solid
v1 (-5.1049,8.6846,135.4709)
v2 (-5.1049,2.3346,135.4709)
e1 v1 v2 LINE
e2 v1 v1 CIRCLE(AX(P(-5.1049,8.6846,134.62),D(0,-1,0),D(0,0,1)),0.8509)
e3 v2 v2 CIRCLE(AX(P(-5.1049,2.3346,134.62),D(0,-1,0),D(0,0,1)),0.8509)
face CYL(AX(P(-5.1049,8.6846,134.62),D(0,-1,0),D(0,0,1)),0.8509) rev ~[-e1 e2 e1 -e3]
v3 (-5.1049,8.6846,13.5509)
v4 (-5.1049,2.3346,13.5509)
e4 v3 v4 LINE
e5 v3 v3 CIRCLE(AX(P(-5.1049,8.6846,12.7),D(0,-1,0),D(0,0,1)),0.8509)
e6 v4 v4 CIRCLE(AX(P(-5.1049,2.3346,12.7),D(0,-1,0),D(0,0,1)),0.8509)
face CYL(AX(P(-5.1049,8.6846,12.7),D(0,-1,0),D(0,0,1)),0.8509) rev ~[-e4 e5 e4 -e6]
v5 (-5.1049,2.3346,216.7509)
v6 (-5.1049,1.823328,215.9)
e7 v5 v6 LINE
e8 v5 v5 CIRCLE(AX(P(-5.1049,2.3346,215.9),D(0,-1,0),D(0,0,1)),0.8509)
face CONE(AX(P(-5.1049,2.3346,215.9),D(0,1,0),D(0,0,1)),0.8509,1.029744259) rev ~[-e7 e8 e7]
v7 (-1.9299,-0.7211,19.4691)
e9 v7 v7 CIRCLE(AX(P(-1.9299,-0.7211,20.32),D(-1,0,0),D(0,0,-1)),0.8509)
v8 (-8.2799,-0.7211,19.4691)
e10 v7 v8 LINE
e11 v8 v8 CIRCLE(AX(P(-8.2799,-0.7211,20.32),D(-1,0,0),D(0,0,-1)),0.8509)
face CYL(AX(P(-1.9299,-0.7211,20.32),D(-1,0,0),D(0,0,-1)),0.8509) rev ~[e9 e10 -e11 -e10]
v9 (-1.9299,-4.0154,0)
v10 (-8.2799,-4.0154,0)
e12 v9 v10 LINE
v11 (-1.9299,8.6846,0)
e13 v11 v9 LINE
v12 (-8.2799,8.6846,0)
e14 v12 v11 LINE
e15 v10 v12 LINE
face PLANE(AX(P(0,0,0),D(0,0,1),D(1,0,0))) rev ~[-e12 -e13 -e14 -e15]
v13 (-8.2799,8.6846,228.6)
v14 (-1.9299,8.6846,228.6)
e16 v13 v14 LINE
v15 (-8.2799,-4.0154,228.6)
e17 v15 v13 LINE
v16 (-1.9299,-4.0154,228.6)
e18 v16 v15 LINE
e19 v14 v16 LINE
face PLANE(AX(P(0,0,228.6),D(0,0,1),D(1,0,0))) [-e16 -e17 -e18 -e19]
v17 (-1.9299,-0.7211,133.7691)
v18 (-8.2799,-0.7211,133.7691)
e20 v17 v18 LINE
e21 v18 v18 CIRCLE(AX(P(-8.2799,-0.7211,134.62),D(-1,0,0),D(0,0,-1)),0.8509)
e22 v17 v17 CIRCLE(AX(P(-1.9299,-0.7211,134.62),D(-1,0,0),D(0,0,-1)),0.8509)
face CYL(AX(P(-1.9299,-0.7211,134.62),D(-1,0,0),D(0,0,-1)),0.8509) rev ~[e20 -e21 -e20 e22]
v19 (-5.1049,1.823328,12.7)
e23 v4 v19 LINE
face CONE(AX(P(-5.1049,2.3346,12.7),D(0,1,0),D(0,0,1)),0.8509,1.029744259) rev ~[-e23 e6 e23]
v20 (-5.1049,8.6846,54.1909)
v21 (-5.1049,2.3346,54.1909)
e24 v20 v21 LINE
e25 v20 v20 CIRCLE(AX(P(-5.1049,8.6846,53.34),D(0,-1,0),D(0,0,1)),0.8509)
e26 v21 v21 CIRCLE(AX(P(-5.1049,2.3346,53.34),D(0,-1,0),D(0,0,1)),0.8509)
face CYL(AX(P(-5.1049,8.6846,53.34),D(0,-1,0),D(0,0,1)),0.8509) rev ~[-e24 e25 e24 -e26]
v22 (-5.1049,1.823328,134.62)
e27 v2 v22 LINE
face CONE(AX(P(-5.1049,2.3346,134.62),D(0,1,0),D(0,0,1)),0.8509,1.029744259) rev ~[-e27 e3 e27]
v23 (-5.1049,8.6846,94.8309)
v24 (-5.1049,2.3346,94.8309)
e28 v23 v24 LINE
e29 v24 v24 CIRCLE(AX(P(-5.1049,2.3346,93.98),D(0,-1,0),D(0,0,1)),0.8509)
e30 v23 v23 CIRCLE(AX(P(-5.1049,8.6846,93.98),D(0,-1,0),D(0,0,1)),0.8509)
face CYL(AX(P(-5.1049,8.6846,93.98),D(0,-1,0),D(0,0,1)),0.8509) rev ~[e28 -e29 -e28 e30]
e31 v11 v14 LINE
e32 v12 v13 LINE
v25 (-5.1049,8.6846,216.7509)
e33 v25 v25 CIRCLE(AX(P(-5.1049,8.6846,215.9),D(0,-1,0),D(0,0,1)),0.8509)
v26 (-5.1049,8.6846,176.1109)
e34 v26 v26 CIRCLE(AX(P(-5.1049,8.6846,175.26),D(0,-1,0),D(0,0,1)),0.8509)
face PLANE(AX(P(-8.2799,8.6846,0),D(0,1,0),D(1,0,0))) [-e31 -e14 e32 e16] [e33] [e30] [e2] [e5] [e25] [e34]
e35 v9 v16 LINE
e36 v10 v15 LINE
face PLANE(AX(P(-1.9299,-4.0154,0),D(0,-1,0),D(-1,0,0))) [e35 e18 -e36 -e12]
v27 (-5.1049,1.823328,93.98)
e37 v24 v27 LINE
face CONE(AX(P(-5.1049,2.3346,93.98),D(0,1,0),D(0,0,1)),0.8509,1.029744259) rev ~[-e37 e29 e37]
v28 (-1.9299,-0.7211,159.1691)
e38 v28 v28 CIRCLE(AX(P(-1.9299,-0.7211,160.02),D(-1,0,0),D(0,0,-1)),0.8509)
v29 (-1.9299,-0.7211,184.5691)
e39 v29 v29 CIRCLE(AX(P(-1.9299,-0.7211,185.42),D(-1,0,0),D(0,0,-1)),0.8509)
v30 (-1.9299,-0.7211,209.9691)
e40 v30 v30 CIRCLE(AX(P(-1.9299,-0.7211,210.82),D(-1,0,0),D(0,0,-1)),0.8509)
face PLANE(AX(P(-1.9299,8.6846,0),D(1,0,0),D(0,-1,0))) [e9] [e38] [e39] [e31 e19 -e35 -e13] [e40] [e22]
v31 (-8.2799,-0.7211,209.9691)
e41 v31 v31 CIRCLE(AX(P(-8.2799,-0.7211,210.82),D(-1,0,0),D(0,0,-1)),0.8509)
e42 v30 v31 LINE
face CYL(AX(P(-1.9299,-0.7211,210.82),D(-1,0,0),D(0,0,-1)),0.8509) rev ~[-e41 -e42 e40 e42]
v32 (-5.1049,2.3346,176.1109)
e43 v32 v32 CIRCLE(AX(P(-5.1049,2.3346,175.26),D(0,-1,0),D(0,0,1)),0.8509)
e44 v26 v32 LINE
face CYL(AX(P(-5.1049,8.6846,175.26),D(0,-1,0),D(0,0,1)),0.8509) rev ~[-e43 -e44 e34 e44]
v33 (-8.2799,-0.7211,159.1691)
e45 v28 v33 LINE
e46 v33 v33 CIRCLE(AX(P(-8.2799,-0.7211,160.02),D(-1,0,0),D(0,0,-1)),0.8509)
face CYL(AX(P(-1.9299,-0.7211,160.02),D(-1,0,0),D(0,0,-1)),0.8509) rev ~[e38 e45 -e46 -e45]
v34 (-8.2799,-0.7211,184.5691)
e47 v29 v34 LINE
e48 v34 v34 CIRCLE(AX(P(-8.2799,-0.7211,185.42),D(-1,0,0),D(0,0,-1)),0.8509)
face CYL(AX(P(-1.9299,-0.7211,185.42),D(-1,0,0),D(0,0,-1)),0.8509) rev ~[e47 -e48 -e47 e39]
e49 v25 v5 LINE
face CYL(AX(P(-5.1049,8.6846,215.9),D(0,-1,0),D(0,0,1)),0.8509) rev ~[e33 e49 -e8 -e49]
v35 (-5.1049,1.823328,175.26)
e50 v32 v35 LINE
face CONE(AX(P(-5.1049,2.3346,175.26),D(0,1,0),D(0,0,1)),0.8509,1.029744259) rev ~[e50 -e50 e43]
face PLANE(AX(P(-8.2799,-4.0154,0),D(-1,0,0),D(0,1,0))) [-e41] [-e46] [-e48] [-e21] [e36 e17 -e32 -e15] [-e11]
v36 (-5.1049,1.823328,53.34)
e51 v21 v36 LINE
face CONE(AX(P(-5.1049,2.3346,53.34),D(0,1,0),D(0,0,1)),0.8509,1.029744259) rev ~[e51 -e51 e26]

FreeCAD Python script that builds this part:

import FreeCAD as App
import Part
import Sketcher
Q = App.Units.Quantity

doc = App.newDocument("Part")
body = doc.addObject("PartDesign::Body", "Body")

# Sketch on XY plane
sketch1 = doc.addObject("Sketcher::SketchObject", "Sketch")
body.addObject(sketch1)
sketch1.AttachmentSupport = (doc.XY_Plane, [""])
sketch1.MapMode = "FlatFace"
sketch1.addGeometry([
    Part.LineSegment(App.Vector(-2, 9, 0), App.Vector(-8, 9, 0)),
    Part.LineSegment(App.Vector(-8, 9, 0), App.Vector(-8, -4, 0)),
    Part.LineSegment(App.Vector(-8, -4, 0), App.Vector(-2, -4, 0)),
    Part.LineSegment(App.Vector(-2, -4, 0), App.Vector(-2, 9, 0)),
], False)
sketch1.addConstraint([
    Sketcher.Constraint("Coincident", 0, 2, 1, 1),
    Sketcher.Constraint("Coincident", 1, 2, 2, 1),
    Sketcher.Constraint("Coincident", 2, 2, 3, 1),
    Sketcher.Constraint("Coincident", 3, 2, 0, 1),
    Sketcher.Constraint("Horizontal", 0),
    Sketcher.Constraint("Vertical", 1),
    Sketcher.Constraint("Horizontal", 2),
    Sketcher.Constraint("Vertical", 3),
    Sketcher.Constraint("DistanceY", 1, 2, 1, 1, Q("0.5 in")),
    Sketcher.Constraint("DistanceX", 0, 2, 0, 1, Q("0.25 in")),
    Sketcher.Constraint("DistanceX", 0, 2, -1, 1, 8.28),
    Sketcher.Constraint("DistanceY", -1, 1, 0, 2, 8.6846),
])
pad1 = doc.addObject("PartDesign::Pad", "Pad")
body.addObject(pad1)
pad1.Profile = sketch1
pad1.Length = Q("9 in")

# Sketch on YZ plane
sketch2 = doc.addObject("Sketcher::SketchObject", "Sketch001")
body.addObject(sketch2)
sketch2.AttachmentSupport = (doc.YZ_Plane, [""])
sketch2.MapMode = "FlatFace"
sketch2.AttachmentOffset = App.Placement(App.Vector(0, 0, -1.9299), App.Rotation())
sketch2.addGeometry(Part.Circle(App.Vector(-0.7, 210.8, 0), App.Vector(0, 0, 1), 0.9), False)
sketch2.addConstraint([
    Sketcher.Constraint("Diameter", 0, Q("0.067 in")),
    Sketcher.Constraint("DistanceY", -1, 1, 0, 3, Q("8.3 in")),
    Sketcher.Constraint("DistanceX", 0, 3, -1, 1, Q("0.0284 in")),
])
doc.recompute()
hole = doc.addObject("PartDesign::Hole", "Hole")
body.addObject(hole)
hole.Profile = sketch2
hole.ThreadType = "None"
hole.Diameter = Q("0.067 in")
hole.DepthType = "ThroughAll"
doc.recompute()

linearpattern = doc.addObject("PartDesign::LinearPattern", "LinearPattern")
body.addObject(linearpattern)
linearpattern.Originals = [hole]
linearpattern.Direction = (doc.Z_Axis, [""])
linearpattern.Mode = "offset"
linearpattern.Offset = Q("1 in")
linearpattern.Occurrences = 4
linearpattern.Reversed = True
body.Tip = linearpattern

# Sketch on YZ plane
sketch3 = doc.addObject("Sketcher::SketchObject", "Sketch002")
body.addObject(sketch3)
sketch3.AttachmentSupport = (doc.YZ_Plane, [""])
sketch3.MapMode = "FlatFace"
sketch3.AttachmentOffset = App.Placement(App.Vector(0, 0, -1.9299), App.Rotation())
sketch3.addGeometry(Part.Circle(App.Vector(-0.7, 20.3, 0), App.Vector(0, 0, 1), 0.9), False)
sketch3.addConstraint([
    Sketcher.Constraint("Diameter", 0, Q("0.067 in")),
    Sketcher.Constraint("DistanceY", -1, 1, 0, 3, Q("0.8 in")),
    Sketcher.Constraint("DistanceX", 0, 3, -1, 1, Q("0.0284 in")),
])
doc.recompute()
hole2 = doc.addObject("PartDesign::Hole", "Hole001")
body.addObject(hole2)
hole2.Profile = sketch3
hole2.ThreadType = "None"
hole2.Diameter = Q("0.067 in")
hole2.DepthType = "ThroughAll"

# Sketch on XZ plane
sketch4 = doc.addObject("Sketcher::SketchObject", "Sketch003")
body.addObject(sketch4)
sketch4.AttachmentSupport = (doc.XZ_Plane, [""])
sketch4.MapMode = "FlatFace"
sketch4.AttachmentOffset = App.Placement(App.Vector(0, 0, -8.6846), App.Rotation())
sketch4.addGeometry(Part.Circle(App.Vector(-5.1, 215.9, 0), App.Vector(0, 0, 1), 0.9), False)
sketch4.addConstraint([
    Sketcher.Constraint("Diameter", 0, Q("0.067 in")),
    Sketcher.Constraint("DistanceY", -1, 1, 0, 3, Q("8.5 in")),
    Sketcher.Constraint("DistanceX", 0, 3, -1, 1, 5.105),
])
doc.recompute()
hole3 = doc.addObject("PartDesign::Hole", "Hole002")
body.addObject(hole3)
hole3.Profile = sketch4
hole3.ThreadType = "None"
hole3.Diameter = Q("0.067 in")
hole3.DepthType = "Dimension"
hole3.Depth = Q("0.25 in")
hole3.DrillPoint = "Angled"
hole3.DrillPointAngle = 118
hole3.Reversed = True
doc.recompute()

linearpattern2 = doc.addObject("PartDesign::LinearPattern", "LinearPattern001")
body.addObject(linearpattern2)
linearpattern2.Originals = [hole3]
linearpattern2.Direction = (doc.Z_Axis, [""])
linearpattern2.Mode = "offset"
linearpattern2.Offset = Q("1.6 in")
linearpattern2.Occurrences = 6
linearpattern2.Reversed = True
body.Tip = linearpattern2

doc.recompute()
